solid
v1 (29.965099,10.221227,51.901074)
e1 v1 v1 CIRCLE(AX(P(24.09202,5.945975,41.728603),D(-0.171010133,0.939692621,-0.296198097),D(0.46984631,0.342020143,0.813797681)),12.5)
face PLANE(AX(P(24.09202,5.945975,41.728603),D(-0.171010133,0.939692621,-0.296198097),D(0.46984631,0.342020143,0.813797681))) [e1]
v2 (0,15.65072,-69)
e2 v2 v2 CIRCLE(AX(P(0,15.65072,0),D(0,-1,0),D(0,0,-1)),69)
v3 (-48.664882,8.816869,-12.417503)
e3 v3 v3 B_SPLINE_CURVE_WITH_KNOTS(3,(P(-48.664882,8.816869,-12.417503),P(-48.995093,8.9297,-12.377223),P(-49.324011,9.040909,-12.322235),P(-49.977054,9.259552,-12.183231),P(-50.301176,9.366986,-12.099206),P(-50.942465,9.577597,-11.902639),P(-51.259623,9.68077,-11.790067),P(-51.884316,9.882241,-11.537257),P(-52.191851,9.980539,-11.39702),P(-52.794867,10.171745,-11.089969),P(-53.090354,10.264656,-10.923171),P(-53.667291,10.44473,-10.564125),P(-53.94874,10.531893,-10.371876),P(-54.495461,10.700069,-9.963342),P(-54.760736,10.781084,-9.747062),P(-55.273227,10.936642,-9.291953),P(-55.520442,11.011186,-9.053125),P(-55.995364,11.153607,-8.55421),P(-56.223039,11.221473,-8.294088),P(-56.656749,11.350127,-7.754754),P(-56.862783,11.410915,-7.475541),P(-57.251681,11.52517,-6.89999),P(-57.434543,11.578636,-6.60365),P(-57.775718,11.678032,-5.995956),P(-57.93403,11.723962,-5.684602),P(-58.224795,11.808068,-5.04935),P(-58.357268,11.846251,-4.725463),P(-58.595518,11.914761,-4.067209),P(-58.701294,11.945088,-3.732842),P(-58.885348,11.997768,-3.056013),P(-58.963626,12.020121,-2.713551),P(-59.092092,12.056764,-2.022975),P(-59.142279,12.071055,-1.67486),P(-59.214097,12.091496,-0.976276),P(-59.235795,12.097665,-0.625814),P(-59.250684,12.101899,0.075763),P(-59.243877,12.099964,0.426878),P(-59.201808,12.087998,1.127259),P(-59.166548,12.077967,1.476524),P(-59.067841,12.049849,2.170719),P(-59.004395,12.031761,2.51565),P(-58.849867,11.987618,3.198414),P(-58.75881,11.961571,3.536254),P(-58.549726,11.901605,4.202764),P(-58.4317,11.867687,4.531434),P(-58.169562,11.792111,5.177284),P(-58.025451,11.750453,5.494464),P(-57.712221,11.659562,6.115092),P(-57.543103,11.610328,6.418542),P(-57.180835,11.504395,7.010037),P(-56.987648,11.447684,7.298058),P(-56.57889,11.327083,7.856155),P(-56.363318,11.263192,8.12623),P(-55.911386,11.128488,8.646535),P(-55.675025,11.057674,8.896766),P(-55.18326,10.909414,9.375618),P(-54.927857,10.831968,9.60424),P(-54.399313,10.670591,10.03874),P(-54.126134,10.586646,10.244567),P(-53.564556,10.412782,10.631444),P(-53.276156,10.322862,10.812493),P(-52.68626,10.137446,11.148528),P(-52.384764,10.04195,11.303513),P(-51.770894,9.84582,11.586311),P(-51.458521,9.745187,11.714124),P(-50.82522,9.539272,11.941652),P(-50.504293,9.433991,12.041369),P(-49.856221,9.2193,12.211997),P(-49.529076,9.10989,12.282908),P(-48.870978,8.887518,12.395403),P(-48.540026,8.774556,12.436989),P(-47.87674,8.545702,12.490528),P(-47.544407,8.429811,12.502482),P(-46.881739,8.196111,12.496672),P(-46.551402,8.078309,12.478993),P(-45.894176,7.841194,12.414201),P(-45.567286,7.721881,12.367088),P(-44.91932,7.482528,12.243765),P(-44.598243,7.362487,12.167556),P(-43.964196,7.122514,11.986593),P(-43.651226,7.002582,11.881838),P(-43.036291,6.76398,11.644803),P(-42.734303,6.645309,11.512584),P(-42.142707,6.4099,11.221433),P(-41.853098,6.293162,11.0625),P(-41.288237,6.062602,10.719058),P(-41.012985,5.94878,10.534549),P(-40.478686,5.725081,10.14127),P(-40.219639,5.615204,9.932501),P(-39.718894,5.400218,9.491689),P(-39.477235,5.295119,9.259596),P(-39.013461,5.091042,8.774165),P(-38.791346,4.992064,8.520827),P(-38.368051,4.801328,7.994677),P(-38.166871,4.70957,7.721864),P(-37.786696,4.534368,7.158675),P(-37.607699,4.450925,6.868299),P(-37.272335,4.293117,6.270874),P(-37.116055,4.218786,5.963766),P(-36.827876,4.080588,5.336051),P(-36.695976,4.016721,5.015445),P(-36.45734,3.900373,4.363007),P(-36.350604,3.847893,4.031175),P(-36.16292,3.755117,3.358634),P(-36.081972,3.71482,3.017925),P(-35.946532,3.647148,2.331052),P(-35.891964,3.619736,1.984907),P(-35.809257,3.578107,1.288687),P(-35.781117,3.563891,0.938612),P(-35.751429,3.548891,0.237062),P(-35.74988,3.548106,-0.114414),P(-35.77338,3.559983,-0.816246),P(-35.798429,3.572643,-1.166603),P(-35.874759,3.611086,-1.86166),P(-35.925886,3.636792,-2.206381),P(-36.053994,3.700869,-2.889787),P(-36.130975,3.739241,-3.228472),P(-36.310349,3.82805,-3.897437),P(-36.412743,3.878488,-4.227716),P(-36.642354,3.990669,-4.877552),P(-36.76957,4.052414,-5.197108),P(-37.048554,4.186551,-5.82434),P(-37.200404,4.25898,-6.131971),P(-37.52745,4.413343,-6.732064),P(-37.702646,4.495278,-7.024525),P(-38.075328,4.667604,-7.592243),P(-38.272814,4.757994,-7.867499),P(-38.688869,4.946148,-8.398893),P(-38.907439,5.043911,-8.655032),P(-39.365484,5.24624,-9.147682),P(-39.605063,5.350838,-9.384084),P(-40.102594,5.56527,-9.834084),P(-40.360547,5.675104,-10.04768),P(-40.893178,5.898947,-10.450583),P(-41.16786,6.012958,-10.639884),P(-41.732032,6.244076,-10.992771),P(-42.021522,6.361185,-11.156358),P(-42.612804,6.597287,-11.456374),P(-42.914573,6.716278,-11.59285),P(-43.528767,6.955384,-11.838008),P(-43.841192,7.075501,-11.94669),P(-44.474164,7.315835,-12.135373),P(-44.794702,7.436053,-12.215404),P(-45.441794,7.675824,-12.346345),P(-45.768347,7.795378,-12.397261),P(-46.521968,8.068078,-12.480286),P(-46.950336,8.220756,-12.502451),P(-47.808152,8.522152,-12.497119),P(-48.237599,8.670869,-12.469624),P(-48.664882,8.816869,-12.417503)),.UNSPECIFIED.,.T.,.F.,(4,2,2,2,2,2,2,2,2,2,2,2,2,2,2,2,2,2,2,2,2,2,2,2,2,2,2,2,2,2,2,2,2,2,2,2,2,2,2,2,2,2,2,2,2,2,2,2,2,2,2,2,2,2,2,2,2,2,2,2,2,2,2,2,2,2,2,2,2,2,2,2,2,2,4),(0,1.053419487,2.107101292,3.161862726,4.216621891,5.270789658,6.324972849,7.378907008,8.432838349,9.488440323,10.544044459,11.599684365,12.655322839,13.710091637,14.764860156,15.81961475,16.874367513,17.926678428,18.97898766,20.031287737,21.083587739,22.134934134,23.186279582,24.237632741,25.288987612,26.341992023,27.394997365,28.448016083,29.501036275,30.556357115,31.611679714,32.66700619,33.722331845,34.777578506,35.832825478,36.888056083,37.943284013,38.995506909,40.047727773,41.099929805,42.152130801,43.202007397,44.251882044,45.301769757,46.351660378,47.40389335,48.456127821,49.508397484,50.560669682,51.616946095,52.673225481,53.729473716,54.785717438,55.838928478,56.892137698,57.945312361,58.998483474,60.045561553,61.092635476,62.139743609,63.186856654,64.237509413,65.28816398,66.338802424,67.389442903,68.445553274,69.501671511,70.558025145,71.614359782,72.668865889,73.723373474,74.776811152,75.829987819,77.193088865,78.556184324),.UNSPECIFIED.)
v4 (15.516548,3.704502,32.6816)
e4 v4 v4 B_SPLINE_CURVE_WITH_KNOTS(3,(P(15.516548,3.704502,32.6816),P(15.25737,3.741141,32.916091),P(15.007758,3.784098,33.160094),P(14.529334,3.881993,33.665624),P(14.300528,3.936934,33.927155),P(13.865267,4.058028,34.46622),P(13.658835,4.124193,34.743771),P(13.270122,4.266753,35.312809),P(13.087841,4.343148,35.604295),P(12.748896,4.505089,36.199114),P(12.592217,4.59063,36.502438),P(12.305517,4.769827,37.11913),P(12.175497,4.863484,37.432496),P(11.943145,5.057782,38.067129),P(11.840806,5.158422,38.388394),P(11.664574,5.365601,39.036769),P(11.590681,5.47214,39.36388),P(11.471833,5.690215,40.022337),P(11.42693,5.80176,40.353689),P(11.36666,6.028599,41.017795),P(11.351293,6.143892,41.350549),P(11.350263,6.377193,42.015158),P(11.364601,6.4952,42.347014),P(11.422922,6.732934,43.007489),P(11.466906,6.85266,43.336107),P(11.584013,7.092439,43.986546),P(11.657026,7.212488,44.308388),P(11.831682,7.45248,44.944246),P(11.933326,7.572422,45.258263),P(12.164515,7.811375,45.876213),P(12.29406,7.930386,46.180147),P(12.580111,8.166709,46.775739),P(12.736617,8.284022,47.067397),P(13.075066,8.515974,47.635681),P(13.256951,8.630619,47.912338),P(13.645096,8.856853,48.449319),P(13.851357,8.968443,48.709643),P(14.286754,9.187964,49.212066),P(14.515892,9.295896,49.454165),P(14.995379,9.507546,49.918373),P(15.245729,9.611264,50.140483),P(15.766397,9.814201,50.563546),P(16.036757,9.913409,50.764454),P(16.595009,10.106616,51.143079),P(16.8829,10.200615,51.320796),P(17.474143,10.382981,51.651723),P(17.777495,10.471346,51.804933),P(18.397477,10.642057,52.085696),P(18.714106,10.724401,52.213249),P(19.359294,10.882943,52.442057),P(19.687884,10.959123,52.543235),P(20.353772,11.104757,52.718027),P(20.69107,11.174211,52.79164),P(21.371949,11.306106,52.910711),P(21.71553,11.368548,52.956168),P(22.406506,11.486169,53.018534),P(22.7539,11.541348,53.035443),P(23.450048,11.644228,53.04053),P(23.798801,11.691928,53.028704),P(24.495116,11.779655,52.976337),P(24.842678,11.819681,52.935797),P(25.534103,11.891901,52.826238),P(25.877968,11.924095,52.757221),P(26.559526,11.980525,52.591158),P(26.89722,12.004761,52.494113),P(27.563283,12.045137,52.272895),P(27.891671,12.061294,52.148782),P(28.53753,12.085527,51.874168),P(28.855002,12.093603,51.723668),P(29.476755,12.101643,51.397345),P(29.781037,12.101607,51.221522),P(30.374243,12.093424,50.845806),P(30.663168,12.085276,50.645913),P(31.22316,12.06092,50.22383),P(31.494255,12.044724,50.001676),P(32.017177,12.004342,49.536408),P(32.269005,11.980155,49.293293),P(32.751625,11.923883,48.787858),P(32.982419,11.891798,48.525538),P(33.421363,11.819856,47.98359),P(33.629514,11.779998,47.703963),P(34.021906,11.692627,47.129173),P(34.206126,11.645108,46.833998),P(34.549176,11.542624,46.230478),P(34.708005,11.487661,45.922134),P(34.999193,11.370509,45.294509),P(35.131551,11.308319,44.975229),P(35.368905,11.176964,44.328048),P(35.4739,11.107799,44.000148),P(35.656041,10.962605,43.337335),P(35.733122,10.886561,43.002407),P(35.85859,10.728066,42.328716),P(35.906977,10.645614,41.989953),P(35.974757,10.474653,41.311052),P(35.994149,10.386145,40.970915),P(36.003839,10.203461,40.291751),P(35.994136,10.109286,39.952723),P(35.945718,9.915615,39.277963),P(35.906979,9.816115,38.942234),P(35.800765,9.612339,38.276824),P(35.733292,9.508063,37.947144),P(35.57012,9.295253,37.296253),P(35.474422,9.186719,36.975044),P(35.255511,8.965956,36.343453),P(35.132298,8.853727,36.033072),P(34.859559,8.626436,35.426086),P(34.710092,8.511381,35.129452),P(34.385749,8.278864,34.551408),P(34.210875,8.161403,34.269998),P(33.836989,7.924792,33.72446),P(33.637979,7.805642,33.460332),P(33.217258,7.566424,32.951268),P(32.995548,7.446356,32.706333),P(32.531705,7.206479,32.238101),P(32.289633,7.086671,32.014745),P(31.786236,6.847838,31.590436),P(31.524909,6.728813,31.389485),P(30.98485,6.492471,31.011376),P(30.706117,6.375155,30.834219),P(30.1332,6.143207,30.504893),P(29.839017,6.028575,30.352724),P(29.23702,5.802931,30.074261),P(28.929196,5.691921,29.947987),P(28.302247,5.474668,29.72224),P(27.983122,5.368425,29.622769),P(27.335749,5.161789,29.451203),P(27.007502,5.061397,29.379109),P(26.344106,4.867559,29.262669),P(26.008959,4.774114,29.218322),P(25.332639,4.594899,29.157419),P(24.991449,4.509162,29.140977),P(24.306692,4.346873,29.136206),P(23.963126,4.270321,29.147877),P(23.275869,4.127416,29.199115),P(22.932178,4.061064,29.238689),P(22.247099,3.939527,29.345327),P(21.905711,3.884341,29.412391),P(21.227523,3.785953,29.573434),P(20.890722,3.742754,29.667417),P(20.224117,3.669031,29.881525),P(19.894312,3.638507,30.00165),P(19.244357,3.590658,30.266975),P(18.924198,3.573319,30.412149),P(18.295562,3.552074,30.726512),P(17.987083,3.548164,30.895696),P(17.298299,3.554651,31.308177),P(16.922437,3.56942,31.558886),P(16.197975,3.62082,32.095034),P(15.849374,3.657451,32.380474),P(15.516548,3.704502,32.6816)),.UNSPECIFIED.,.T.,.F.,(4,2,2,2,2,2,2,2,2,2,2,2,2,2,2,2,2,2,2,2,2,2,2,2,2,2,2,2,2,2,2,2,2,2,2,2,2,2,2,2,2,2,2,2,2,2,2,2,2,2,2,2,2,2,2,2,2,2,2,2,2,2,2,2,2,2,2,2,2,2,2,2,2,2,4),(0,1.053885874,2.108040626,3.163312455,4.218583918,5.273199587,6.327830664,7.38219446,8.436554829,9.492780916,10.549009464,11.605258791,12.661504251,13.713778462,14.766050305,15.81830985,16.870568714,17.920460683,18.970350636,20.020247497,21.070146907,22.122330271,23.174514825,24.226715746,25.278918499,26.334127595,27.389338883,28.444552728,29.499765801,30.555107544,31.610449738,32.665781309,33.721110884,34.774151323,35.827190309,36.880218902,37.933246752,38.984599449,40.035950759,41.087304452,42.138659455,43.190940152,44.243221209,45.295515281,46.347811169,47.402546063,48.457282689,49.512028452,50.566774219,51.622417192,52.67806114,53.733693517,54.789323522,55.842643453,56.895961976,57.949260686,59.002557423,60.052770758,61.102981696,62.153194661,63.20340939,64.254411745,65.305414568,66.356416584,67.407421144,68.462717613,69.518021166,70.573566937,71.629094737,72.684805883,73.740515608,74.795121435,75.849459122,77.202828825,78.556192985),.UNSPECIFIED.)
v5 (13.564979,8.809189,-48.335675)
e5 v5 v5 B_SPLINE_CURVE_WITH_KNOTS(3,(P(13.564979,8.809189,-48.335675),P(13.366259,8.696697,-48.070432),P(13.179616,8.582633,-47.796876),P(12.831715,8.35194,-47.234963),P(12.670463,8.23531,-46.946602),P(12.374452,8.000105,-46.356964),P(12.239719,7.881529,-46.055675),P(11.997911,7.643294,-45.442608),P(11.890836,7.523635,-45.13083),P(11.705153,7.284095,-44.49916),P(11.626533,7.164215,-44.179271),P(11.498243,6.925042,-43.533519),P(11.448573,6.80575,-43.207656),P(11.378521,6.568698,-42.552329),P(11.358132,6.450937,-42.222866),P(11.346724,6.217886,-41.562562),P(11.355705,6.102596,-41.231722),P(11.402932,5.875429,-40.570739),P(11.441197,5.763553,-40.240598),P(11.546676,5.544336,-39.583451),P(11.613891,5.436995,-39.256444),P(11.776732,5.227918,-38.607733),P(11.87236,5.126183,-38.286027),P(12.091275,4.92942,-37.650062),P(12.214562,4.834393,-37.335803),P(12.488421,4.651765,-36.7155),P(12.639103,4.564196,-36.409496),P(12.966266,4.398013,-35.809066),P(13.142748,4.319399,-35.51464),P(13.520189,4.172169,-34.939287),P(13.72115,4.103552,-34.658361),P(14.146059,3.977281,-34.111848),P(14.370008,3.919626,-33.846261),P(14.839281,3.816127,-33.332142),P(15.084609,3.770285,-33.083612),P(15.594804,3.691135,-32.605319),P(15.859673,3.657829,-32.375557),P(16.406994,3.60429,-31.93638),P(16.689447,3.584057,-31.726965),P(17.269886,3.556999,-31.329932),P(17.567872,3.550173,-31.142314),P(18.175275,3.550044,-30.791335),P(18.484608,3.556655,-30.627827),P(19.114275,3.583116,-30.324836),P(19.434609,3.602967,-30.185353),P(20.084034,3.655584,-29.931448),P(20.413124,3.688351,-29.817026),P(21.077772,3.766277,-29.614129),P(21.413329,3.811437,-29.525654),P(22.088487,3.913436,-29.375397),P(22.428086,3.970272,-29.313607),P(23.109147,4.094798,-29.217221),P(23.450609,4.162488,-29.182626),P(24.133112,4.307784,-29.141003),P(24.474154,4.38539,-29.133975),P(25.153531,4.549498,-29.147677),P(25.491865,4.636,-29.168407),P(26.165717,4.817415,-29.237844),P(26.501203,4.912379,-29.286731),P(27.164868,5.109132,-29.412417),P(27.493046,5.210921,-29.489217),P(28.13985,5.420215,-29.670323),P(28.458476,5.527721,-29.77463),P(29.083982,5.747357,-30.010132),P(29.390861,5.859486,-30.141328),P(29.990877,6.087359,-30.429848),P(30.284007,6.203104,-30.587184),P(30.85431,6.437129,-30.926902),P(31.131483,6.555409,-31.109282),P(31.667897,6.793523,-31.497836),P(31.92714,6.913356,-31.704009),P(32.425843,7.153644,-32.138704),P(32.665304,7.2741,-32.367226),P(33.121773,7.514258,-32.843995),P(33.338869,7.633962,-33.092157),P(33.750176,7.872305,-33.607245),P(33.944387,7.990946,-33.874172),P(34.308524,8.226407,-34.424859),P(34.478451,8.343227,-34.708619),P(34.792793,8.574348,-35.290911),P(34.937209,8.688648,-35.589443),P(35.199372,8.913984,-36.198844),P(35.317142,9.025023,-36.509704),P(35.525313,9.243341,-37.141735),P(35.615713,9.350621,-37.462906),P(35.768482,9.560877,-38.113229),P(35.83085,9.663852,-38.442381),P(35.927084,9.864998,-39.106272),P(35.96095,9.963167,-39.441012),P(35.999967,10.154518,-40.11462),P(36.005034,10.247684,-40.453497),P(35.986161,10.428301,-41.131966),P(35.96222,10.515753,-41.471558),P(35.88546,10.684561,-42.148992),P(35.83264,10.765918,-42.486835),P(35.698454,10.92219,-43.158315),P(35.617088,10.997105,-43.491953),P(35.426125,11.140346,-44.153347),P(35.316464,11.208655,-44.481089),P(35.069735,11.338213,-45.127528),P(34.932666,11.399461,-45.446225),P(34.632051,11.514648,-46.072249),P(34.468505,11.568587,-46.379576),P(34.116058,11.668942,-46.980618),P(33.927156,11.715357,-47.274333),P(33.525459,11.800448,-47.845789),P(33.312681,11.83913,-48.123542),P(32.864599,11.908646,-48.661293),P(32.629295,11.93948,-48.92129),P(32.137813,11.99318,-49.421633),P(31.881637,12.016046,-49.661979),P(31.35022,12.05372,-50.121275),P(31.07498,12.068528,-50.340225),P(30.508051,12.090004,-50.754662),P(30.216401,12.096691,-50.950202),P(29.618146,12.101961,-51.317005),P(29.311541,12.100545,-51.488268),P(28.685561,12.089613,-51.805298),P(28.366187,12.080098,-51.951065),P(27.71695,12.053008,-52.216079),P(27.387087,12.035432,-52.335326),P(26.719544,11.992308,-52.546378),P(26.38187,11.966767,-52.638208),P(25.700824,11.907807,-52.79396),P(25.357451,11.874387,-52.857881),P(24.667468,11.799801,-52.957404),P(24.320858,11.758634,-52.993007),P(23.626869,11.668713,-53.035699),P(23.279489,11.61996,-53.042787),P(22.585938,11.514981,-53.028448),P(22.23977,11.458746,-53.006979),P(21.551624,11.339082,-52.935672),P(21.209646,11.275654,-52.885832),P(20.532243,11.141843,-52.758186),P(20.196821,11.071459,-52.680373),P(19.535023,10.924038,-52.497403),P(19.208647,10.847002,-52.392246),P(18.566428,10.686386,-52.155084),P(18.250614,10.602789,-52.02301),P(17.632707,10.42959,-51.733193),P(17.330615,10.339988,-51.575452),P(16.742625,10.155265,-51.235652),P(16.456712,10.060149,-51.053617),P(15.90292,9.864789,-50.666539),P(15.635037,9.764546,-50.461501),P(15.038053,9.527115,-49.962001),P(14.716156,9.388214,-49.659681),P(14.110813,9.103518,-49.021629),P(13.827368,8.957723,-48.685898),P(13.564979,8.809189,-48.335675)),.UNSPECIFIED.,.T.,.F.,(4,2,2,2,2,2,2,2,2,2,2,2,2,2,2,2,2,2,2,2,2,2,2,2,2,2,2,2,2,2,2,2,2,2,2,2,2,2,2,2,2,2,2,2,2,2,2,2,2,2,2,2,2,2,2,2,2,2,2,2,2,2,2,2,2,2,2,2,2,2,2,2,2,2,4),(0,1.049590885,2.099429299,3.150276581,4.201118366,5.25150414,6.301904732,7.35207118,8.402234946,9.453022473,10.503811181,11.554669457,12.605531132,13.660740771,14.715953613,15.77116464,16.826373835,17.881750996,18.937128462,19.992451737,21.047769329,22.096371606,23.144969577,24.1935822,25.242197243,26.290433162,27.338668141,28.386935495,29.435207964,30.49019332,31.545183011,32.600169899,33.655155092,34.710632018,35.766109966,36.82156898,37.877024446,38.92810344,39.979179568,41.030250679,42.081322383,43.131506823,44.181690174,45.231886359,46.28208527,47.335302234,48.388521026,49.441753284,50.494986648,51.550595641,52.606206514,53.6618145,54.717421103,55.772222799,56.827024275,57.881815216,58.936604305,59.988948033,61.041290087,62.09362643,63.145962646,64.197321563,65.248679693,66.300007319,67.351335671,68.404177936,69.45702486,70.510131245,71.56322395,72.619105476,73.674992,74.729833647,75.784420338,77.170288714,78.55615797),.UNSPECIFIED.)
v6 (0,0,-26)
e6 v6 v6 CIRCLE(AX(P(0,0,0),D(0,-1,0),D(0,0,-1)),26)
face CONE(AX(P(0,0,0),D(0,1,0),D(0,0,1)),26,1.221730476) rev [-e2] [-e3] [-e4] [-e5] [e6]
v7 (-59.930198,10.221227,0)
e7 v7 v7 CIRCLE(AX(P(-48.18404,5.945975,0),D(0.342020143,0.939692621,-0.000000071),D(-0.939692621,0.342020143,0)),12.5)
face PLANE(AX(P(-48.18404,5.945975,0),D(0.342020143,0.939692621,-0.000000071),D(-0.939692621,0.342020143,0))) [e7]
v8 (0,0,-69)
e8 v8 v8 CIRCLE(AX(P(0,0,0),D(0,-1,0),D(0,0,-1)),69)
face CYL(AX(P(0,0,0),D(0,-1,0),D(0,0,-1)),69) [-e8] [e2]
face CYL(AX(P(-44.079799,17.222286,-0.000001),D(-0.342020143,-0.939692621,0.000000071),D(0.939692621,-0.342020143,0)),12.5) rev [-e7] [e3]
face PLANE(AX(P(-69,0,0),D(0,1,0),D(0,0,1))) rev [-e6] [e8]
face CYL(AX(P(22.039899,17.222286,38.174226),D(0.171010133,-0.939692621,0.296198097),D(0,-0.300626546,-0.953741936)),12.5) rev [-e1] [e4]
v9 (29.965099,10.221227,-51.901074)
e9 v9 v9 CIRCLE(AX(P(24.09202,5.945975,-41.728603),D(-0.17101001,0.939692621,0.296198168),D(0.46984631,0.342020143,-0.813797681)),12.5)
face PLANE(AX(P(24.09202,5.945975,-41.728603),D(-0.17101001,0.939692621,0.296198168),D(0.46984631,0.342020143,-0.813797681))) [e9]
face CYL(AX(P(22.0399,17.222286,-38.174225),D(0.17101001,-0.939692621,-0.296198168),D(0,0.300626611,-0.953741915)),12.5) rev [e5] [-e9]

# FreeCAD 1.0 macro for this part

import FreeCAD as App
import Part
import Sketcher

V = App.Vector
Q = App.Units.Quantity

doc = App.newDocument("Part")
body = doc.addObject("PartDesign::Body", "Body")

# Sketch on XY plane
sketch1 = body.newObject("Sketcher::SketchObject", "Sketch")
sketch1.AttachmentSupport = (doc.getObject("XY_Plane"), [""])
sketch1.MapMode = "FlatFace"
sketch1.addGeometry([
    Part.LineSegment(V(-69, 16, 0), V(-69, 0, 0)),
    Part.LineSegment(V(-69, 0, 0), V(-26, 0, 0)),
    Part.LineSegment(V(-26, 0, 0), V(-69, 16, 0)),
], False)
sketch1.addConstraint([
    Sketcher.Constraint("Coincident", 0, 2, 1, 1),
    Sketcher.Constraint("Coincident", 1, 2, 2, 1),
    Sketcher.Constraint("Coincident", 2, 2, 0, 1),
    Sketcher.Constraint("Vertical", 0),
    Sketcher.Constraint("Horizontal", 1),
    Sketcher.Constraint("PointOnObject", 0, 2, -1),
    Sketcher.Constraint("DistanceX", 1, 1, 1, 2, 43.0),
    Sketcher.Constraint("Angle", 2, Q("160 deg")),
    Sketcher.Constraint("DistanceX", 0, 2, -1, 1, 69.0),
])
revolution = body.newObject("PartDesign::Revolution", "Revolution")
revolution.Profile = sketch1
revolution.ReferenceAxis = (sketch1, ["V_Axis"])
revolution.Angle = 360

# Sketch on an angled plane
sketch2 = body.newObject("Sketcher::SketchObject", "Sketch001")
sketch2.Placement = App.Placement(V(-3.725463, -10.235624, 0.000001), App.Rotation(V(-0.939692621, 0.342020143, 0), V(0.000000024, 0.000000067, 1), V(0.342020143, 0.939692621, -0.000000071), "ZXY"))
sketch2.addGeometry(Part.Circle(V(47, 0, 0), V(0, 0, 1), 12), False)
sketch2.addConstraint([
    Sketcher.Constraint("PointOnObject", 0, 3, -1),
    Sketcher.Constraint("Diameter", 0, 25.0),
    Sketcher.Constraint("DistanceX", -1, 1, 0, 3, 47.31183),
])
pocket1 = body.newObject("PartDesign::Pocket", "Pocket")
pocket1.Profile = sketch2
pocket1.Length = 12
pocket1.Reversed = True
doc.recompute()

polarpattern = body.newObject("PartDesign::PolarPattern", "PolarPattern")
polarpattern.Originals = [pocket1]
polarpattern.Axis = (doc.getObject("Y_Axis"), [""])
polarpattern.Angle = 360
polarpattern.Occurrences = 3
body.Tip = polarpattern

doc.recompute()
